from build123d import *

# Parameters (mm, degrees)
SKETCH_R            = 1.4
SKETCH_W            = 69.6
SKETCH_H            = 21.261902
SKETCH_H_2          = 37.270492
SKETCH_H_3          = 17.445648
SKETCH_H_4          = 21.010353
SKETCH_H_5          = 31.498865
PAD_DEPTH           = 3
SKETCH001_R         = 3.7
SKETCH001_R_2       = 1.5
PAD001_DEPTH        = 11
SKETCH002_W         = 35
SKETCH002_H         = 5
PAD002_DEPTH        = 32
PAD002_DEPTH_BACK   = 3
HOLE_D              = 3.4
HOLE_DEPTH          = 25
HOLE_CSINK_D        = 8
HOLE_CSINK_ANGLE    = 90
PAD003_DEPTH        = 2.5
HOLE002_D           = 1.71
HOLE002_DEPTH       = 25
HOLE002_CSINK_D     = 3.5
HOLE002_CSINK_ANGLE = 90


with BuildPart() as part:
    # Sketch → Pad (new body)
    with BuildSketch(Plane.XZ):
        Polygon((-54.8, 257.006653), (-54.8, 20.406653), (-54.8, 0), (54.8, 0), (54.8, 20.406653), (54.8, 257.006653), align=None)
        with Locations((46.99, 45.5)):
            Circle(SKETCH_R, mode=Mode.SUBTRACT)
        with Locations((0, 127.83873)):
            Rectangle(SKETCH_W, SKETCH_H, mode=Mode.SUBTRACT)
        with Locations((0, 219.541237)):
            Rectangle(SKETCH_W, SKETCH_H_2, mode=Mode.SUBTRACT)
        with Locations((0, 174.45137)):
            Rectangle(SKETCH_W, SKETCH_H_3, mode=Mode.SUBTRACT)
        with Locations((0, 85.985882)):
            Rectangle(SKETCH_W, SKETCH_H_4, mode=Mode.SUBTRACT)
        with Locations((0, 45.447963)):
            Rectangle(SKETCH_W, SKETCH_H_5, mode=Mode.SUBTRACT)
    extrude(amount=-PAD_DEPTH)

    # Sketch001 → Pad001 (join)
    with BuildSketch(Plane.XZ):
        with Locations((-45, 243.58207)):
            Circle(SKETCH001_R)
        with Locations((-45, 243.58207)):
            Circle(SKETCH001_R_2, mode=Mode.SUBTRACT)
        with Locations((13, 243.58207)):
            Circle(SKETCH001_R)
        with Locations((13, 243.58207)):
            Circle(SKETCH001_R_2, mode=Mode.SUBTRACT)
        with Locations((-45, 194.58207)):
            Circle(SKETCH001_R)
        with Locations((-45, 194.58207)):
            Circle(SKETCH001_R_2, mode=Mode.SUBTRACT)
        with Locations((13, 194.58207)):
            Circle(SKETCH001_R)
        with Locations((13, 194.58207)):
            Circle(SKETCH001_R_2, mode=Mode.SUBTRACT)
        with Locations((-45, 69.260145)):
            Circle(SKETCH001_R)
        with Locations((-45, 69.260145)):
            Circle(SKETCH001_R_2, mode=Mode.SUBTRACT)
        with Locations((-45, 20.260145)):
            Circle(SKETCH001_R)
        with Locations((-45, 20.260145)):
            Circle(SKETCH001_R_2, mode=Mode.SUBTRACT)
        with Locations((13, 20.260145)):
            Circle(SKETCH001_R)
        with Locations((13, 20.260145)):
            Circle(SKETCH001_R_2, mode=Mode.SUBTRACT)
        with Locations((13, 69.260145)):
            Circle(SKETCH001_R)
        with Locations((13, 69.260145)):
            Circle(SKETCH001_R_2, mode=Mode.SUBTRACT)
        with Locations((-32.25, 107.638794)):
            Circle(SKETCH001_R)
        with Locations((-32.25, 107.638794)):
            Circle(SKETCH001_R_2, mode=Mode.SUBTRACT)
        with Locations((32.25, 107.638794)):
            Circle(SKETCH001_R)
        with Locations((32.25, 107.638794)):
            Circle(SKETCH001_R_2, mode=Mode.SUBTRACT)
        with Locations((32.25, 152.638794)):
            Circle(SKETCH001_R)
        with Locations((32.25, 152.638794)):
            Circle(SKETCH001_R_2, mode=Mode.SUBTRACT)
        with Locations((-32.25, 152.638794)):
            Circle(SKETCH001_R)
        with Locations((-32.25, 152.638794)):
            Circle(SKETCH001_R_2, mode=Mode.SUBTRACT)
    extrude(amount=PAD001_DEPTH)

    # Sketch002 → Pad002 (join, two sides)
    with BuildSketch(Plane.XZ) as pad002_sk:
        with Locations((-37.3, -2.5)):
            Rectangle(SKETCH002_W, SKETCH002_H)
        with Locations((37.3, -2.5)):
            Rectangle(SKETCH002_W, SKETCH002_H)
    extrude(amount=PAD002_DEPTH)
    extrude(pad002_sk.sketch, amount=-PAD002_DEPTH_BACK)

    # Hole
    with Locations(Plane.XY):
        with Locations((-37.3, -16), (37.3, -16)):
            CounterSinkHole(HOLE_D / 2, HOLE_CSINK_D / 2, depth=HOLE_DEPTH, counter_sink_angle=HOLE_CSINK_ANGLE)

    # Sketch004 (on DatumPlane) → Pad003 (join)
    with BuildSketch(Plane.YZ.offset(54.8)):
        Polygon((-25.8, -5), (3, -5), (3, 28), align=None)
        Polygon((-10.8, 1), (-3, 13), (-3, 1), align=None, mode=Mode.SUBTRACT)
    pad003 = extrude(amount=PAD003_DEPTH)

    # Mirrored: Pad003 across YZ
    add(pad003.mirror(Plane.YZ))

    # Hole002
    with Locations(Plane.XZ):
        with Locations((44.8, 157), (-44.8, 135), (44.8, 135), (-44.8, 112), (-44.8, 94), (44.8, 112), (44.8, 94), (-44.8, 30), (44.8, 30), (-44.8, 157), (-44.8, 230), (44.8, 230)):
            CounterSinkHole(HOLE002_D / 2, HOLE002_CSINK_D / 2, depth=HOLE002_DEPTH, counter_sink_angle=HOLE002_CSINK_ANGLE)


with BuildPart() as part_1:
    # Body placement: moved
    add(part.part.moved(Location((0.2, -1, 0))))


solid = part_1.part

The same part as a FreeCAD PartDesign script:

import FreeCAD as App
import Part
import Sketcher

V = App.Vector


def add_polygon(sketch, points):
    """Adds a closed chain of lines whose ends are joined by coincident constraints."""
    first, n = sketch.GeometryCount, len(points)
    for a, b in zip(points, points[1:] + points[:1]):
        sketch.addGeometry(Part.LineSegment(App.Vector(*a, 0), App.Vector(*b, 0)), False)
    for i in range(n):
        sketch.addConstraint(Sketcher.Constraint("Coincident", first + i, 2, first + (i + 1) % n, 1))

doc = App.newDocument("Part")
body = doc.addObject("PartDesign::Body", "Body")

sketch1 = body.newObject("Sketcher::SketchObject", "Sketch")
sketch1.AttachmentSupport = (doc.getObject("XZ_Plane"), [""])
sketch1.MapMode = "FlatFace"
add_polygon(sketch1, [(-54.8, 257), (-54.8, 0), (54.8, 0), (54.8, 257)])
add_polygon(sketch1, [(34.8, 29.7), (-34.8, 29.7), (-34.8, 61.2), (34.8, 61.2)])
add_polygon(sketch1, [(34.8, 75.5), (-34.8, 75.5), (-34.8, 96.5), (34.8, 96.5)])
add_polygon(sketch1, [(34.8, 117.2), (-34.8, 117.2), (-34.8, 138.5), (34.8, 138.5)])
sketch1.addGeometry(Part.Circle(V(47, 45.5, 0), V(0, 0, 1), 1.4), False)
add_polygon(sketch1, [(34.8, 165.7), (-34.8, 165.7), (-34.8, 183.2), (34.8, 183.2)])
add_polygon(sketch1, [(34.8, 200.9), (-34.8, 200.9), (-34.8, 238.2), (34.8, 238.2)])
sketch1.addConstraint(Sketcher.Constraint("Vertical", 0))
sketch1.addConstraint(Sketcher.Constraint("Horizontal", 1))
sketch1.addConstraint(Sketcher.Constraint("Vertical", 2))
sketch1.addConstraint(Sketcher.Constraint("Horizontal", 3))
sketch1.addConstraint(Sketcher.Constraint("Horizontal", 4))
sketch1.addConstraint(Sketcher.Constraint("Vertical", 5))
sketch1.addConstraint(Sketcher.Constraint("Horizontal", 6))
sketch1.addConstraint(Sketcher.Constraint("Vertical", 7))
sketch1.addConstraint(Sketcher.Constraint("Horizontal", 8))
sketch1.addConstraint(Sketcher.Constraint("Vertical", 9))
sketch1.addConstraint(Sketcher.Constraint("Horizontal", 10))
sketch1.addConstraint(Sketcher.Constraint("Vertical", 11))
sketch1.addConstraint(Sketcher.Constraint("Horizontal", 12))
sketch1.addConstraint(Sketcher.Constraint("Vertical", 13))
sketch1.addConstraint(Sketcher.Constraint("Horizontal", 14))
sketch1.addConstraint(Sketcher.Constraint("Vertical", 15))
sketch1.addConstraint(Sketcher.Constraint("Horizontal", 17))
sketch1.addConstraint(Sketcher.Constraint("Vertical", 18))
sketch1.addConstraint(Sketcher.Constraint("Horizontal", 19))
sketch1.addConstraint(Sketcher.Constraint("Vertical", 20))
sketch1.addConstraint(Sketcher.Constraint("Horizontal", 21))
sketch1.addConstraint(Sketcher.Constraint("Vertical", 22))
sketch1.addConstraint(Sketcher.Constraint("Horizontal", 23))
sketch1.addConstraint(Sketcher.Constraint("Vertical", 24))
sketch1.addConstraint(Sketcher.Constraint("Symmetric", 0, 2, 1, 2, -1, 1))
sketch1.addConstraint(Sketcher.Constraint("Vertical", 5, 2, 8, 2))
sketch1.addConstraint(Sketcher.Constraint("Vertical", 7, 2, 10, 2))
sketch1.addConstraint(Sketcher.Constraint("Vertical", 9, 2, 12, 2))
sketch1.addConstraint(Sketcher.Constraint("Vertical", 11, 2, 14, 2))
sketch1.addConstraint(Sketcher.Constraint("Vertical", 13, 2, 17, 2))
sketch1.addConstraint(Sketcher.Constraint("Vertical", 15, 2, 19, 2))
sketch1.addConstraint(Sketcher.Constraint("Vertical", 18, 2, 21, 2))
sketch1.addConstraint(Sketcher.Constraint("Vertical", 20, 2, 23, 2))
sketch1.addConstraint(Sketcher.Constraint("Diameter", 16, 2.8))
sketch1.addConstraint(Sketcher.Constraint("DistanceX", 1, 1, 1, 2, 109.6))
sketch1.addConstraint(Sketcher.Constraint("DistanceX", 4, 2, 4, 1, 69.6))
sketch1.addConstraint(Sketcher.Constraint("DistanceX", 0, 2, 4, 2, 20.0))
sketch1.addConstraint(Sketcher.Constraint("DistanceY", -1, 1, 16, 3, 45.5))
sketch1.addConstraint(Sketcher.Constraint("DistanceX", -1, 1, 16, 3, 46.99))
sketch1.addConstraint(Sketcher.Constraint("DistanceY", 18, 1, 18, 2, 17.445648))
sketch1.addConstraint(Sketcher.Constraint("DistanceY", 22, 1, 22, 2, 37.270492))
sketch1.addConstraint(Sketcher.Constraint("DistanceY", 0, 2, 0, 1, 257.006653))
sketch1.addConstraint(Sketcher.Constraint("DistanceY", 5, 1, 5, 2, 31.498865))
sketch1.addConstraint(Sketcher.Constraint("DistanceY", 9, 1, 9, 2, 21.010353))
sketch1.addConstraint(Sketcher.Constraint("DistanceY", 13, 1, 13, 2, 21.261902))
sketch1.addConstraint(Sketcher.Constraint("DistanceY", -1, 1, 4, 2, 29.698531))
sketch1.addConstraint(Sketcher.Constraint("DistanceY", -1, 1, 9, 2, 96.491058))
sketch1.addConstraint(Sketcher.Constraint("DistanceY", -1, 1, 12, 2, 117.207779))
sketch1.addConstraint(Sketcher.Constraint("DistanceY", -1, 1, 21, 2, 200.905991))
sketch1.addConstraint(Sketcher.Constraint("DistanceY", 18, 2, 3, 2, 73.832459))
pad1 = body.newObject("PartDesign::Pad", "Pad")
pad1.Profile = sketch1
pad1.Length = 3
pad1.Reversed = True

sketch2 = body.newObject("Sketcher::SketchObject", "Sketch001")
sketch2.AttachmentSupport = (doc.getObject("XZ_Plane"), [""])
sketch2.MapMode = "FlatFace"
sketch2.addGeometry(Part.Circle(V(-45, 243.6, 0), V(0, 0, 1), 3.7), False)
sketch2.addGeometry(Part.Circle(V(-45, 243.6, 0), V(0, 0, 1), 1.5), False)
sketch2.addGeometry(Part.Circle(V(13, 243.6, 0), V(0, 0, 1), 3.7), False)
sketch2.addGeometry(Part.Circle(V(13, 243.6, 0), V(0, 0, 1), 1.5), False)
sketch2.addGeometry(Part.Circle(V(-45, 194.6, 0), V(0, 0, 1), 3.7), False)
sketch2.addGeometry(Part.Circle(V(-45, 194.6, 0), V(0, 0, 1), 1.5), False)
sketch2.addGeometry(Part.Circle(V(13, 194.6, 0), V(0, 0, 1), 3.7), False)
sketch2.addGeometry(Part.Circle(V(13, 194.6, 0), V(0, 0, 1), 1.5), False)
sketch2.addGeometry(Part.Circle(V(-45, 69.3, 0), V(0, 0, 1), 3.7), False)
sketch2.addGeometry(Part.Circle(V(-45, 69.3, 0), V(0, 0, 1), 1.5), False)
sketch2.addGeometry(Part.Circle(V(-45, 20.3, 0), V(0, 0, 1), 3.7), False)
sketch2.addGeometry(Part.Circle(V(-45, 20.3, 0), V(0, 0, 1), 1.5), False)
sketch2.addGeometry(Part.Circle(V(13, 20.3, 0), V(0, 0, 1), 3.7), False)
sketch2.addGeometry(Part.Circle(V(13, 20.3, 0), V(0, 0, 1), 1.5), False)
sketch2.addGeometry(Part.Circle(V(13, 69.3, 0), V(0, 0, 1), 3.7), False)
sketch2.addGeometry(Part.Circle(V(13, 69.3, 0), V(0, 0, 1), 1.5), False)
sketch2.addGeometry(Part.Circle(V(-32.2, 107.6, 0), V(0, 0, 1), 3.7), False)
sketch2.addGeometry(Part.Circle(V(-32.2, 107.6, 0), V(0, 0, 1), 1.5), False)
sketch2.addGeometry(Part.Circle(V(32.2, 107.6, 0), V(0, 0, 1), 3.7), False)
sketch2.addGeometry(Part.Circle(V(32.2, 107.6, 0), V(0, 0, 1), 1.5), False)
sketch2.addGeometry(Part.Circle(V(32.2, 152.6, 0), V(0, 0, 1), 3.7), False)
sketch2.addGeometry(Part.Circle(V(32.2, 152.6, 0), V(0, 0, 1), 1.5), False)
sketch2.addGeometry(Part.Circle(V(-32.2, 152.6, 0), V(0, 0, 1), 3.7), False)
sketch2.addGeometry(Part.Circle(V(-32.2, 152.6, 0), V(0, 0, 1), 1.5), False)
sketch2.addConstraint(Sketcher.Constraint("Coincident", 1, 3, 0, 3))
sketch2.addConstraint(Sketcher.Constraint("Coincident", 3, 3, 2, 3))
sketch2.addConstraint(Sketcher.Constraint("Coincident", 5, 3, 4, 3))
sketch2.addConstraint(Sketcher.Constraint("Coincident", 7, 3, 6, 3))
sketch2.addConstraint(Sketcher.Constraint("Coincident", 9, 3, 8, 3))
sketch2.addConstraint(Sketcher.Constraint("Coincident", 11, 3, 10, 3))
sketch2.addConstraint(Sketcher.Constraint("Coincident", 13, 3, 12, 3))
sketch2.addConstraint(Sketcher.Constraint("Coincident", 15, 3, 14, 3))
sketch2.addConstraint(Sketcher.Constraint("Coincident", 17, 3, 16, 3))
sketch2.addConstraint(Sketcher.Constraint("Coincident", 19, 3, 18, 3))
sketch2.addConstraint(Sketcher.Constraint("Coincident", 21, 3, 20, 3))
sketch2.addConstraint(Sketcher.Constraint("Coincident", 23, 3, 22, 3))
sketch2.addConstraint(Sketcher.Constraint("Equal", 0, 2))
sketch2.addConstraint(Sketcher.Constraint("Equal", 1, 3))
sketch2.addConstraint(Sketcher.Constraint("Equal", 2, 4))
sketch2.addConstraint(Sketcher.Constraint("Equal", 3, 5))
sketch2.addConstraint(Sketcher.Constraint("Equal", 4, 6))
sketch2.addConstraint(Sketcher.Constraint("Equal", 5, 7))
sketch2.addConstraint(Sketcher.Constraint("Equal", 6, 8))
sketch2.addConstraint(Sketcher.Constraint("Equal", 7, 9))
sketch2.addConstraint(Sketcher.Constraint("Equal", 8, 10))
sketch2.addConstraint(Sketcher.Constraint("Equal", 9, 11))
sketch2.addConstraint(Sketcher.Constraint("Equal", 10, 12))
sketch2.addConstraint(Sketcher.Constraint("Equal", 11, 13))
sketch2.addConstraint(Sketcher.Constraint("Equal", 12, 14))
sketch2.addConstraint(Sketcher.Constraint("Equal", 13, 15))
sketch2.addConstraint(Sketcher.Constraint("Equal", 14, 16))
sketch2.addConstraint(Sketcher.Constraint("Equal", 15, 17))
sketch2.addConstraint(Sketcher.Constraint("Equal", 16, 18))
sketch2.addConstraint(Sketcher.Constraint("Equal", 17, 19))
sketch2.addConstraint(Sketcher.Constraint("Equal", 18, 20))
sketch2.addConstraint(Sketcher.Constraint("Equal", 19, 21))
sketch2.addConstraint(Sketcher.Constraint("Equal", 20, 22))
sketch2.addConstraint(Sketcher.Constraint("Equal", 21, 23))
sketch2.addConstraint(Sketcher.Constraint("Symmetric", 16, 3, 18, 3, -2))
sketch2.addConstraint(Sketcher.Constraint("Symmetric", 20, 3, 22, 3, -2))
sketch2.addConstraint(Sketcher.Constraint("Horizontal", 1, 3, 2, 3))
sketch2.addConstraint(Sketcher.Constraint("Horizontal", 5, 3, 6, 3))
sketch2.addConstraint(Sketcher.Constraint("Horizontal", 11, 3, 12, 3))
sketch2.addConstraint(Sketcher.Constraint("Horizontal", 9, 3, 14, 3))
sketch2.addConstraint(Sketcher.Constraint("Vertical", 1, 3, 4, 3))
sketch2.addConstraint(Sketcher.Constraint("Vertical", 3, 3, 6, 3))
sketch2.addConstraint(Sketcher.Constraint("Vertical", 5, 3, 8, 3))
sketch2.addConstraint(Sketcher.Constraint("Vertical", 9, 3, 10, 3))
sketch2.addConstraint(Sketcher.Constraint("Vertical", 7, 3, 12, 3))
sketch2.addConstraint(Sketcher.Constraint("Vertical", 13, 3, 14, 3))
sketch2.addConstraint(Sketcher.Constraint("Vertical", 19, 3, 20, 3))
sketch2.addConstraint(Sketcher.Constraint("Diameter", 1, 3.0))
sketch2.addConstraint(Sketcher.Constraint("Diameter", 0, 7.4))
sketch2.addConstraint(Sketcher.Constraint("DistanceX", 0, 3, -1, 1, 45.0))
sketch2.addConstraint(Sketcher.Constraint("DistanceX", -1, 1, 2, 3, 13.0))
sketch2.addConstraint(Sketcher.Constraint("DistanceY", 4, 3, 0, 3, 49.0))
sketch2.addConstraint(Sketcher.Constraint("DistanceY", 10, 3, 8, 3, 49.0))
sketch2.addConstraint(Sketcher.Constraint("DistanceY", 18, 3, 20, 3, 45.0))
sketch2.addConstraint(Sketcher.Constraint("DistanceX", 16, 3, 18, 3, 64.5))
sketch2.addConstraint(Sketcher.Constraint("DistanceY", -1, 1, 0, 3, 243.58207))
sketch2.addConstraint(Sketcher.Constraint("DistanceY", 8, 3, 16, 3, 38.378649))
sketch2.addConstraint(Sketcher.Constraint("DistanceY", -1, 1, 8, 3, 69.260145))
pad2 = body.newObject("PartDesign::Pad", "Pad001")
pad2.Profile = sketch2
pad2.Length = 11

sketch3 = body.newObject("Sketcher::SketchObject", "Sketch002")
sketch3.AttachmentSupport = (doc.getObject("XZ_Plane"), [""])
sketch3.MapMode = "FlatFace"
add_polygon(sketch3, [(-55, 0), (-55, -5), (-20, -5), (-20, 0)])
add_polygon(sketch3, [(20, 0), (20, -5), (55, -5), (55, 0)])
sketch3.addConstraint(Sketcher.Constraint("Vertical", 0))
sketch3.addConstraint(Sketcher.Constraint("Horizontal", 1))
sketch3.addConstraint(Sketcher.Constraint("Vertical", 2))
sketch3.addConstraint(Sketcher.Constraint("Horizontal", 3))
sketch3.addConstraint(Sketcher.Constraint("Vertical", 4))
sketch3.addConstraint(Sketcher.Constraint("Horizontal", 5))
sketch3.addConstraint(Sketcher.Constraint("Vertical", 6))
sketch3.addConstraint(Sketcher.Constraint("Horizontal", 7))
sketch3.addConstraint(Sketcher.Constraint("Symmetric", 3, 2, 6, 2, -1, 1))
sketch3.addConstraint(Sketcher.Constraint("Symmetric", 1, 2, 4, 2, -2))
sketch3.addConstraint(Sketcher.Constraint("PointOnObject", 2, 2, -1))
sketch3.addConstraint(Sketcher.Constraint("DistanceX", 1, 1, 1, 2, 35.0))
sketch3.addConstraint(Sketcher.Constraint("DistanceY", 0, 2, 0, 1, 5.0))
sketch3.addConstraint(Sketcher.Constraint("DistanceX", 0, 2, -1, 1, 54.8))
pad3 = body.newObject("PartDesign::Pad", "Pad002")
pad3.Profile = sketch3
pad3.Type = "TwoLengths"
pad3.Length = 32
pad3.Length2 = 3

sketch4 = body.newObject("Sketcher::SketchObject", "Sketch003")
sketch4.AttachmentSupport = (doc.getObject("XY_Plane"), [""])
sketch4.MapMode = "FlatFace"
sketch4.addGeometry(Part.Circle(V(-37.3, -16, 0), V(0, 0, 1), 1.7), False)
sketch4.addGeometry(Part.Circle(V(37.3, -16, 0), V(0, 0, 1), 1.7), False)
sketch4.addConstraint(Sketcher.Constraint("Equal", 0, 1))
sketch4.addConstraint(Sketcher.Constraint("Symmetric", 0, 3, 1, 3, -2))
sketch4.addConstraint(Sketcher.Constraint("Diameter", 0, 3.4))
sketch4.addConstraint(Sketcher.Constraint("DistanceY", 0, 3, -1, 1, 16.0))
sketch4.addConstraint(Sketcher.Constraint("DistanceX", 0, 3, -1, 1, 37.3))
doc.recompute()
hole = body.newObject("PartDesign::Hole", "Hole")
hole.Profile = sketch4
hole.ThreadType = "None"
hole.Diameter = 3.4
hole.DepthType = "Dimension"
hole.Depth = 25
hole.DrillPoint = "Flat"
hole.HoleCutType = "Countersink"
hole.HoleCutDiameter = 8
hole.HoleCutCountersinkAngle = 90

sketch5 = body.newObject("Sketcher::SketchObject", "Sketch004")
sketch5.AttachmentSupport = (doc.getObject("YZ_Plane"), [""])
sketch5.MapMode = "FlatFace"
sketch5.AttachmentOffset = App.Placement(V(0, 0, 54.8), App.Rotation())
add_polygon(sketch5, [(-26, -5), (3, -5), (3, 28)])
add_polygon(sketch5, [(-3, 1), (-11, 1), (-3, 13)])
sketch5.addConstraint(Sketcher.Constraint("Horizontal", 0))
sketch5.addConstraint(Sketcher.Constraint("Vertical", 1))
sketch5.addConstraint(Sketcher.Constraint("Horizontal", 3))
sketch5.addConstraint(Sketcher.Constraint("Vertical", 5))
sketch5.addConstraint(Sketcher.Constraint("DistanceY", 1, 1, 1, 2, 33.0))
sketch5.addConstraint(Sketcher.Constraint("DistanceY", 5, 2, 5, 1, 12.0))
sketch5.addConstraint(Sketcher.Constraint("DistanceX", 0, 1, 0, 2, 28.8))
sketch5.addConstraint(Sketcher.Constraint("DistanceX", 3, 2, 3, 1, 7.8))
sketch5.addConstraint(Sketcher.Constraint("DistanceX", -1, 1, 0, 2, 3.0))
sketch5.addConstraint(Sketcher.Constraint("DistanceY", 0, 2, -1, 1, 5.0))
sketch5.addConstraint(Sketcher.Constraint("DistanceY", -1, 1, 3, 2, 1.0))
sketch5.addConstraint(Sketcher.Constraint("DistanceX", 4, 2, -1, 1, 3.0))
pad4 = body.newObject("PartDesign::Pad", "Pad003")
pad4.Profile = sketch5
pad4.Length = 2.5
doc.recompute()

mirrored = body.newObject("PartDesign::Mirrored", "Mirrored")
mirrored.Originals = [pad4]
mirrored.MirrorPlane = (doc.getObject("YZ_Plane"), [""])
body.Tip = mirrored

sketch6 = body.newObject("Sketcher::SketchObject", "Sketch005")
sketch6.AttachmentSupport = (doc.getObject("XZ_Plane"), [""])
sketch6.MapMode = "FlatFace"
sketch6.addGeometry(Part.Circle(V(44.8, 157, 0), V(0, 0, 1), 0.9), False)
sketch6.addGeometry(Part.Circle(V(-44.8, 135, 0), V(0, 0, 1), 0.9), False)
sketch6.addGeometry(Part.Circle(V(44.8, 135, 0), V(0, 0, 1), 0.9), False)
sketch6.addGeometry(Part.Circle(V(-44.8, 112, 0), V(0, 0, 1), 0.9), False)
sketch6.addGeometry(Part.Circle(V(-44.8, 94, 0), V(0, 0, 1), 0.9), False)
sketch6.addGeometry(Part.Circle(V(44.8, 112, 0), V(0, 0, 1), 0.9), False)
sketch6.addGeometry(Part.Circle(V(44.8, 94, 0), V(0, 0, 1), 0.9), False)
sketch6.addGeometry(Part.Circle(V(-44.8, 30, 0), V(0, 0, 1), 0.9), False)
sketch6.addGeometry(Part.Circle(V(44.8, 30, 0), V(0, 0, 1), 0.9), False)
sketch6.addGeometry(Part.Circle(V(-44.8, 157, 0), V(0, 0, 1), 0.9), False)
sketch6.addGeometry(Part.Circle(V(-44.8, 230, 0), V(0, 0, 1), 0.9), False)
sketch6.addGeometry(Part.Circle(V(44.8, 230, 0), V(0, 0, 1), 0.9), False)
sketch6.addConstraint(Sketcher.Constraint("Equal", 0, 1))
sketch6.addConstraint(Sketcher.Constraint("Equal", 1, 2))
sketch6.addConstraint(Sketcher.Constraint("Equal", 2, 3))
sketch6.addConstraint(Sketcher.Constraint("Equal", 3, 4))
sketch6.addConstraint(Sketcher.Constraint("Equal", 4, 5))
sketch6.addConstraint(Sketcher.Constraint("Equal", 5, 6))
sketch6.addConstraint(Sketcher.Constraint("Equal", 6, 7))
sketch6.addConstraint(Sketcher.Constraint("Equal", 7, 8))
sketch6.addConstraint(Sketcher.Constraint("Equal", 8, 9))
sketch6.addConstraint(Sketcher.Constraint("Equal", 9, 10))
sketch6.addConstraint(Sketcher.Constraint("Equal", 10, 11))
sketch6.addConstraint(Sketcher.Constraint("Symmetric", 1, 3, 2, 3, -2))
sketch6.addConstraint(Sketcher.Constraint("Symmetric", 3, 3, 5, 3, -2))
sketch6.addConstraint(Sketcher.Constraint("Symmetric", 4, 3, 6, 3, -2))
sketch6.addConstraint(Sketcher.Constraint("Symmetric", 7, 3, 8, 3, -2))
sketch6.addConstraint(Sketcher.Constraint("Symmetric", 0, 3, 9, 3, -2))
sketch6.addConstraint(Sketcher.Constraint("Symmetric", 10, 3, 11, 3, -2))
sketch6.addConstraint(Sketcher.Constraint("Vertical", 0, 3, 2, 3))
sketch6.addConstraint(Sketcher.Constraint("Vertical", 1, 3, 3, 3))
sketch6.addConstraint(Sketcher.Constraint("Vertical", 3, 3, 4, 3))
sketch6.addConstraint(Sketcher.Constraint("Vertical", 4, 3, 7, 3))
sketch6.addConstraint(Sketcher.Constraint("Vertical", 9, 3, 10, 3))
sketch6.addConstraint(Sketcher.Constraint("Diameter", 0, 1.71))
sketch6.addConstraint(Sketcher.Constraint("DistanceY", -1, 1, 0, 3, 157.0))
sketch6.addConstraint(Sketcher.Constraint("DistanceY", -1, 1, 1, 3, 135.0))
sketch6.addConstraint(Sketcher.Constraint("DistanceY", -1, 1, 3, 3, 112.0))
sketch6.addConstraint(Sketcher.Constraint("DistanceY", -1, 1, 4, 3, 94.0))
sketch6.addConstraint(Sketcher.Constraint("DistanceY", -1, 1, 7, 3, 30.0))
sketch6.addConstraint(Sketcher.Constraint("DistanceY", -1, 1, 10, 3, 230.0))
sketch6.addConstraint(Sketcher.Constraint("DistanceX", -1, 1, 0, 3, 44.8))
doc.recompute()
hole2 = body.newObject("PartDesign::Hole", "Hole001")
hole2.Profile = sketch6
hole2.ThreadType = "None"
hole2.Diameter = 1.71
hole2.DepthType = "Dimension"
hole2.Depth = 25
hole2.DrillPoint = "Flat"
hole2.HoleCutType = "Countersink"
hole2.HoleCutDiameter = 3.5
hole2.HoleCutCountersinkAngle = 90
body2 = doc.addObject("PartDesign::Body", "Body001")
doc.recompute()

body.Placement = App.Placement(V(0.2, -1, 0), App.Rotation(V(0, 0, 1), 0))
boolean = body2.newObject("PartDesign::Boolean", "Boolean")
boolean.Type = "Fuse"
boolean.addObjects([body])

doc.recompute()
